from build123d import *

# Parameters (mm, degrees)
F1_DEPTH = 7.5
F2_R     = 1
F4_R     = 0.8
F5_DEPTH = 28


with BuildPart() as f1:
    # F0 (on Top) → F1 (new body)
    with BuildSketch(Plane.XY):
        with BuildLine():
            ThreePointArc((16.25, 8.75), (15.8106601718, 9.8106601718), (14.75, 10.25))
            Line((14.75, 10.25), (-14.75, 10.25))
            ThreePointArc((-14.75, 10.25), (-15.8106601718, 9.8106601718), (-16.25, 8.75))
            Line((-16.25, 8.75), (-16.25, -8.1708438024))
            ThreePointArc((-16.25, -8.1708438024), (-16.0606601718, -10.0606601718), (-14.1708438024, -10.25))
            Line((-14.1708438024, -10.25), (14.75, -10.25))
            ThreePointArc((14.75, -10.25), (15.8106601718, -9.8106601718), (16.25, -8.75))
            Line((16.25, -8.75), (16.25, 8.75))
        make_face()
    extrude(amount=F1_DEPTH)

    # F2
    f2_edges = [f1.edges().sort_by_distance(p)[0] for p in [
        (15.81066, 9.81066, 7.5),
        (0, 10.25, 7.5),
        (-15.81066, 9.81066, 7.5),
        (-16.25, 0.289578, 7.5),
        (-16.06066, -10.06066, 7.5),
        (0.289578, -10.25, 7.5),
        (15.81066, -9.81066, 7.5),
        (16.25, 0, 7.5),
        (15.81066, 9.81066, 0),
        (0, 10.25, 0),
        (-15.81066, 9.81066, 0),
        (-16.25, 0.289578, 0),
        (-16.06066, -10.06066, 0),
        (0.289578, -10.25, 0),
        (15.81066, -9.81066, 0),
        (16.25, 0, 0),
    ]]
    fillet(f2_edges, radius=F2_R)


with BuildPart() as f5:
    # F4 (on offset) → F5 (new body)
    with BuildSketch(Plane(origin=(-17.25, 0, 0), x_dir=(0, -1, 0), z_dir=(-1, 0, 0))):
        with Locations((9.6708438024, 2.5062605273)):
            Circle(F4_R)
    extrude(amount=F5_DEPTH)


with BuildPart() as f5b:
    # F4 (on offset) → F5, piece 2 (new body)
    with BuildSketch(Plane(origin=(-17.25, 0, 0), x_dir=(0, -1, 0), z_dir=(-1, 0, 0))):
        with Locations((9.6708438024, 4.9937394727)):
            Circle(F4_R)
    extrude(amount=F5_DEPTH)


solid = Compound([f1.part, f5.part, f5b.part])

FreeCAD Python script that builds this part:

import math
import FreeCAD as App
import Part
import Sketcher

V = App.Vector
Q = App.Units.Quantity


def edges_at(feature, points):
    """Names of the edges that pass closest to the given points."""
    edges = feature.Shape.Edges
    near = lambda p: min(range(len(edges)), key=lambda i: edges[i].distToShape(Part.Vertex(*p))[0])
    return sorted({f"Edge{near(p) + 1}" for p in points})

doc = App.newDocument("Part")
body = doc.addObject("PartDesign::Body", "Body")

# Sketch on XY plane
sketch1 = body.newObject("Sketcher::SketchObject", "Sketch")
sketch1.AttachmentSupport = (doc.getObject("XY_Plane"), [""])
sketch1.MapMode = "FlatFace"
sketch1.addGeometry([
    Part.ArcOfCircle(Part.Circle(V(14.75, 8.75, 0), V(0, 0, 1), 1.5), math.radians(0), math.radians(90)),  # 0
    Part.LineSegment(V(14.75, 10.25, 0), V(-14.75, 10.25, 0)),  # 1
    Part.ArcOfCircle(Part.Circle(V(-14.75, 8.75, 0), V(0, 0, 1), 1.5), math.radians(90), math.radians(180)),  # 2
    Part.LineSegment(V(-16.25, 8.75, 0), V(-16.25, -8.170844, 0)),  # 3
    Part.ArcOfCircle(Part.Circle(V(-15, -9, 0), V(0, 0, 1), 1.5), math.radians(146.44269), math.radians(303.55731)),  # 4
    Part.LineSegment(V(-14.170844, -10.25, 0), V(14.75, -10.25, 0)),  # 5
    Part.ArcOfCircle(Part.Circle(V(14.75, -8.75, 0), V(0, 0, 1), 1.5), math.radians(-90), math.radians(0)),  # 6
    Part.LineSegment(V(16.25, -8.75, 0), V(16.25, 8.75, 0)),  # 7
], False)
sketch1.addConstraint([
    Sketcher.Constraint("Tangent", 0, 2, 1, 1),
    Sketcher.Constraint("Tangent", 1, 2, 2, 1),
    Sketcher.Constraint("Tangent", 2, 2, 3, 1),
    Sketcher.Constraint("Coincident", 3, 2, 4, 1),
    Sketcher.Constraint("Coincident", 4, 2, 5, 1),
    Sketcher.Constraint("Tangent", 5, 2, 6, 1),
    Sketcher.Constraint("Tangent", 6, 2, 7, 1),
    Sketcher.Constraint("Tangent", 7, 2, 0, 1),
    Sketcher.Constraint("Horizontal", 1),
    Sketcher.Constraint("Vertical", 3),
    Sketcher.Constraint("Horizontal", 5),
    Sketcher.Constraint("Vertical", 7),
    Sketcher.Constraint("Equal", 0, 2),
    Sketcher.Constraint("Equal", 2, 4),
    Sketcher.Constraint("Equal", 4, 6),
    Sketcher.Constraint("Symmetric", 2, 3, 6, 3, -1, 1),
    Sketcher.Constraint("Radius", 0, Q("1.5 mm")),
    Sketcher.Constraint("DistanceX", 1, 2, 1, 1, Q("29.5 mm")),
    Sketcher.Constraint("DistanceY", 7, 1, 7, 2, Q("17.5 mm")),
    Sketcher.Constraint("DistanceX", 4, 3, -1, 1, Q("15 mm")),
    Sketcher.Constraint("DistanceY", 4, 3, -1, 1, Q("9 mm")),
])
pad1 = body.newObject("PartDesign::Pad", "Pad")
pad1.Profile = sketch1
pad1.Length = 7.5
doc.recompute()

fillet = body.newObject("PartDesign::Fillet", "Fillet")
fillet.Base = (pad1, edges_at(pad1, [
    (15.811, 9.811, 7.5),
    (0, 10.25, 7.5),
    (-15.811, 9.811, 7.5),
    (-16.25, 0.29, 7.5),
    (-16.061, -10.061, 7.5),
    (0.29, -10.25, 7.5),
    (15.811, -9.811, 7.5),
    (16.25, 0, 7.5),
    (15.811, 9.811, 0),
    (0, 10.25, 0),
    (-15.811, 9.811, 0),
    (-16.25, 0.29, 0),
    (-16.061, -10.061, 0),
    (0.29, -10.25, 0),
    (15.811, -9.811, 0),
    (16.25, 0, 0),
]))
fillet.Radius = 1
body2 = doc.addObject("PartDesign::Body", "Body001")

# Sketch on YZ plane
sketch2 = body2.newObject("Sketcher::SketchObject", "Sketch001")
sketch2.AttachmentSupport = (doc.getObject("YZ_Plane001"), [""])
sketch2.MapMode = "FlatFace"
sketch2.AttachmentOffset = App.Placement(V(0, 0, -17.25), App.Rotation())
sketch2.addGeometry(Part.Circle(V(-9.670844, 2.506261, 0), V(0, 0, 1), 0.8), False)
sketch2.addConstraint([
    Sketcher.Constraint("Diameter", 0, Q("1.6 mm")),
    Sketcher.Constraint("DistanceY", -1, 1, 0, 3, Q("2.506261 mm")),
    Sketcher.Constraint("DistanceX", 0, 3, -1, 1, Q("9.670844 mm")),
])
pad2 = body2.newObject("PartDesign::Pad", "Pad001")
pad2.Profile = sketch2
pad2.Length = 28
pad2.Reversed = True
body3 = doc.addObject("PartDesign::Body", "Body002")

# Sketch on YZ plane
sketch3 = body3.newObject("Sketcher::SketchObject", "Sketch002")
sketch3.AttachmentSupport = (doc.getObject("YZ_Plane002"), [""])
sketch3.MapMode = "FlatFace"
sketch3.AttachmentOffset = App.Placement(V(0, 0, -17.25), App.Rotation())
sketch3.addGeometry(Part.Circle(V(-9.670844, 4.993739, 0), V(0, 0, 1), 0.8), False)
sketch3.addConstraint([
    Sketcher.Constraint("Diameter", 0, Q("1.6 mm")),
    Sketcher.Constraint("DistanceY", -1, 1, 0, 3, Q("4.993739 mm")),
    Sketcher.Constraint("DistanceX", 0, 3, -1, 1, Q("9.670844 mm")),
])
pad3 = body3.newObject("PartDesign::Pad", "Pad002")
pad3.Profile = sketch3
pad3.Length = 28
pad3.Reversed = True

doc.recompute()
